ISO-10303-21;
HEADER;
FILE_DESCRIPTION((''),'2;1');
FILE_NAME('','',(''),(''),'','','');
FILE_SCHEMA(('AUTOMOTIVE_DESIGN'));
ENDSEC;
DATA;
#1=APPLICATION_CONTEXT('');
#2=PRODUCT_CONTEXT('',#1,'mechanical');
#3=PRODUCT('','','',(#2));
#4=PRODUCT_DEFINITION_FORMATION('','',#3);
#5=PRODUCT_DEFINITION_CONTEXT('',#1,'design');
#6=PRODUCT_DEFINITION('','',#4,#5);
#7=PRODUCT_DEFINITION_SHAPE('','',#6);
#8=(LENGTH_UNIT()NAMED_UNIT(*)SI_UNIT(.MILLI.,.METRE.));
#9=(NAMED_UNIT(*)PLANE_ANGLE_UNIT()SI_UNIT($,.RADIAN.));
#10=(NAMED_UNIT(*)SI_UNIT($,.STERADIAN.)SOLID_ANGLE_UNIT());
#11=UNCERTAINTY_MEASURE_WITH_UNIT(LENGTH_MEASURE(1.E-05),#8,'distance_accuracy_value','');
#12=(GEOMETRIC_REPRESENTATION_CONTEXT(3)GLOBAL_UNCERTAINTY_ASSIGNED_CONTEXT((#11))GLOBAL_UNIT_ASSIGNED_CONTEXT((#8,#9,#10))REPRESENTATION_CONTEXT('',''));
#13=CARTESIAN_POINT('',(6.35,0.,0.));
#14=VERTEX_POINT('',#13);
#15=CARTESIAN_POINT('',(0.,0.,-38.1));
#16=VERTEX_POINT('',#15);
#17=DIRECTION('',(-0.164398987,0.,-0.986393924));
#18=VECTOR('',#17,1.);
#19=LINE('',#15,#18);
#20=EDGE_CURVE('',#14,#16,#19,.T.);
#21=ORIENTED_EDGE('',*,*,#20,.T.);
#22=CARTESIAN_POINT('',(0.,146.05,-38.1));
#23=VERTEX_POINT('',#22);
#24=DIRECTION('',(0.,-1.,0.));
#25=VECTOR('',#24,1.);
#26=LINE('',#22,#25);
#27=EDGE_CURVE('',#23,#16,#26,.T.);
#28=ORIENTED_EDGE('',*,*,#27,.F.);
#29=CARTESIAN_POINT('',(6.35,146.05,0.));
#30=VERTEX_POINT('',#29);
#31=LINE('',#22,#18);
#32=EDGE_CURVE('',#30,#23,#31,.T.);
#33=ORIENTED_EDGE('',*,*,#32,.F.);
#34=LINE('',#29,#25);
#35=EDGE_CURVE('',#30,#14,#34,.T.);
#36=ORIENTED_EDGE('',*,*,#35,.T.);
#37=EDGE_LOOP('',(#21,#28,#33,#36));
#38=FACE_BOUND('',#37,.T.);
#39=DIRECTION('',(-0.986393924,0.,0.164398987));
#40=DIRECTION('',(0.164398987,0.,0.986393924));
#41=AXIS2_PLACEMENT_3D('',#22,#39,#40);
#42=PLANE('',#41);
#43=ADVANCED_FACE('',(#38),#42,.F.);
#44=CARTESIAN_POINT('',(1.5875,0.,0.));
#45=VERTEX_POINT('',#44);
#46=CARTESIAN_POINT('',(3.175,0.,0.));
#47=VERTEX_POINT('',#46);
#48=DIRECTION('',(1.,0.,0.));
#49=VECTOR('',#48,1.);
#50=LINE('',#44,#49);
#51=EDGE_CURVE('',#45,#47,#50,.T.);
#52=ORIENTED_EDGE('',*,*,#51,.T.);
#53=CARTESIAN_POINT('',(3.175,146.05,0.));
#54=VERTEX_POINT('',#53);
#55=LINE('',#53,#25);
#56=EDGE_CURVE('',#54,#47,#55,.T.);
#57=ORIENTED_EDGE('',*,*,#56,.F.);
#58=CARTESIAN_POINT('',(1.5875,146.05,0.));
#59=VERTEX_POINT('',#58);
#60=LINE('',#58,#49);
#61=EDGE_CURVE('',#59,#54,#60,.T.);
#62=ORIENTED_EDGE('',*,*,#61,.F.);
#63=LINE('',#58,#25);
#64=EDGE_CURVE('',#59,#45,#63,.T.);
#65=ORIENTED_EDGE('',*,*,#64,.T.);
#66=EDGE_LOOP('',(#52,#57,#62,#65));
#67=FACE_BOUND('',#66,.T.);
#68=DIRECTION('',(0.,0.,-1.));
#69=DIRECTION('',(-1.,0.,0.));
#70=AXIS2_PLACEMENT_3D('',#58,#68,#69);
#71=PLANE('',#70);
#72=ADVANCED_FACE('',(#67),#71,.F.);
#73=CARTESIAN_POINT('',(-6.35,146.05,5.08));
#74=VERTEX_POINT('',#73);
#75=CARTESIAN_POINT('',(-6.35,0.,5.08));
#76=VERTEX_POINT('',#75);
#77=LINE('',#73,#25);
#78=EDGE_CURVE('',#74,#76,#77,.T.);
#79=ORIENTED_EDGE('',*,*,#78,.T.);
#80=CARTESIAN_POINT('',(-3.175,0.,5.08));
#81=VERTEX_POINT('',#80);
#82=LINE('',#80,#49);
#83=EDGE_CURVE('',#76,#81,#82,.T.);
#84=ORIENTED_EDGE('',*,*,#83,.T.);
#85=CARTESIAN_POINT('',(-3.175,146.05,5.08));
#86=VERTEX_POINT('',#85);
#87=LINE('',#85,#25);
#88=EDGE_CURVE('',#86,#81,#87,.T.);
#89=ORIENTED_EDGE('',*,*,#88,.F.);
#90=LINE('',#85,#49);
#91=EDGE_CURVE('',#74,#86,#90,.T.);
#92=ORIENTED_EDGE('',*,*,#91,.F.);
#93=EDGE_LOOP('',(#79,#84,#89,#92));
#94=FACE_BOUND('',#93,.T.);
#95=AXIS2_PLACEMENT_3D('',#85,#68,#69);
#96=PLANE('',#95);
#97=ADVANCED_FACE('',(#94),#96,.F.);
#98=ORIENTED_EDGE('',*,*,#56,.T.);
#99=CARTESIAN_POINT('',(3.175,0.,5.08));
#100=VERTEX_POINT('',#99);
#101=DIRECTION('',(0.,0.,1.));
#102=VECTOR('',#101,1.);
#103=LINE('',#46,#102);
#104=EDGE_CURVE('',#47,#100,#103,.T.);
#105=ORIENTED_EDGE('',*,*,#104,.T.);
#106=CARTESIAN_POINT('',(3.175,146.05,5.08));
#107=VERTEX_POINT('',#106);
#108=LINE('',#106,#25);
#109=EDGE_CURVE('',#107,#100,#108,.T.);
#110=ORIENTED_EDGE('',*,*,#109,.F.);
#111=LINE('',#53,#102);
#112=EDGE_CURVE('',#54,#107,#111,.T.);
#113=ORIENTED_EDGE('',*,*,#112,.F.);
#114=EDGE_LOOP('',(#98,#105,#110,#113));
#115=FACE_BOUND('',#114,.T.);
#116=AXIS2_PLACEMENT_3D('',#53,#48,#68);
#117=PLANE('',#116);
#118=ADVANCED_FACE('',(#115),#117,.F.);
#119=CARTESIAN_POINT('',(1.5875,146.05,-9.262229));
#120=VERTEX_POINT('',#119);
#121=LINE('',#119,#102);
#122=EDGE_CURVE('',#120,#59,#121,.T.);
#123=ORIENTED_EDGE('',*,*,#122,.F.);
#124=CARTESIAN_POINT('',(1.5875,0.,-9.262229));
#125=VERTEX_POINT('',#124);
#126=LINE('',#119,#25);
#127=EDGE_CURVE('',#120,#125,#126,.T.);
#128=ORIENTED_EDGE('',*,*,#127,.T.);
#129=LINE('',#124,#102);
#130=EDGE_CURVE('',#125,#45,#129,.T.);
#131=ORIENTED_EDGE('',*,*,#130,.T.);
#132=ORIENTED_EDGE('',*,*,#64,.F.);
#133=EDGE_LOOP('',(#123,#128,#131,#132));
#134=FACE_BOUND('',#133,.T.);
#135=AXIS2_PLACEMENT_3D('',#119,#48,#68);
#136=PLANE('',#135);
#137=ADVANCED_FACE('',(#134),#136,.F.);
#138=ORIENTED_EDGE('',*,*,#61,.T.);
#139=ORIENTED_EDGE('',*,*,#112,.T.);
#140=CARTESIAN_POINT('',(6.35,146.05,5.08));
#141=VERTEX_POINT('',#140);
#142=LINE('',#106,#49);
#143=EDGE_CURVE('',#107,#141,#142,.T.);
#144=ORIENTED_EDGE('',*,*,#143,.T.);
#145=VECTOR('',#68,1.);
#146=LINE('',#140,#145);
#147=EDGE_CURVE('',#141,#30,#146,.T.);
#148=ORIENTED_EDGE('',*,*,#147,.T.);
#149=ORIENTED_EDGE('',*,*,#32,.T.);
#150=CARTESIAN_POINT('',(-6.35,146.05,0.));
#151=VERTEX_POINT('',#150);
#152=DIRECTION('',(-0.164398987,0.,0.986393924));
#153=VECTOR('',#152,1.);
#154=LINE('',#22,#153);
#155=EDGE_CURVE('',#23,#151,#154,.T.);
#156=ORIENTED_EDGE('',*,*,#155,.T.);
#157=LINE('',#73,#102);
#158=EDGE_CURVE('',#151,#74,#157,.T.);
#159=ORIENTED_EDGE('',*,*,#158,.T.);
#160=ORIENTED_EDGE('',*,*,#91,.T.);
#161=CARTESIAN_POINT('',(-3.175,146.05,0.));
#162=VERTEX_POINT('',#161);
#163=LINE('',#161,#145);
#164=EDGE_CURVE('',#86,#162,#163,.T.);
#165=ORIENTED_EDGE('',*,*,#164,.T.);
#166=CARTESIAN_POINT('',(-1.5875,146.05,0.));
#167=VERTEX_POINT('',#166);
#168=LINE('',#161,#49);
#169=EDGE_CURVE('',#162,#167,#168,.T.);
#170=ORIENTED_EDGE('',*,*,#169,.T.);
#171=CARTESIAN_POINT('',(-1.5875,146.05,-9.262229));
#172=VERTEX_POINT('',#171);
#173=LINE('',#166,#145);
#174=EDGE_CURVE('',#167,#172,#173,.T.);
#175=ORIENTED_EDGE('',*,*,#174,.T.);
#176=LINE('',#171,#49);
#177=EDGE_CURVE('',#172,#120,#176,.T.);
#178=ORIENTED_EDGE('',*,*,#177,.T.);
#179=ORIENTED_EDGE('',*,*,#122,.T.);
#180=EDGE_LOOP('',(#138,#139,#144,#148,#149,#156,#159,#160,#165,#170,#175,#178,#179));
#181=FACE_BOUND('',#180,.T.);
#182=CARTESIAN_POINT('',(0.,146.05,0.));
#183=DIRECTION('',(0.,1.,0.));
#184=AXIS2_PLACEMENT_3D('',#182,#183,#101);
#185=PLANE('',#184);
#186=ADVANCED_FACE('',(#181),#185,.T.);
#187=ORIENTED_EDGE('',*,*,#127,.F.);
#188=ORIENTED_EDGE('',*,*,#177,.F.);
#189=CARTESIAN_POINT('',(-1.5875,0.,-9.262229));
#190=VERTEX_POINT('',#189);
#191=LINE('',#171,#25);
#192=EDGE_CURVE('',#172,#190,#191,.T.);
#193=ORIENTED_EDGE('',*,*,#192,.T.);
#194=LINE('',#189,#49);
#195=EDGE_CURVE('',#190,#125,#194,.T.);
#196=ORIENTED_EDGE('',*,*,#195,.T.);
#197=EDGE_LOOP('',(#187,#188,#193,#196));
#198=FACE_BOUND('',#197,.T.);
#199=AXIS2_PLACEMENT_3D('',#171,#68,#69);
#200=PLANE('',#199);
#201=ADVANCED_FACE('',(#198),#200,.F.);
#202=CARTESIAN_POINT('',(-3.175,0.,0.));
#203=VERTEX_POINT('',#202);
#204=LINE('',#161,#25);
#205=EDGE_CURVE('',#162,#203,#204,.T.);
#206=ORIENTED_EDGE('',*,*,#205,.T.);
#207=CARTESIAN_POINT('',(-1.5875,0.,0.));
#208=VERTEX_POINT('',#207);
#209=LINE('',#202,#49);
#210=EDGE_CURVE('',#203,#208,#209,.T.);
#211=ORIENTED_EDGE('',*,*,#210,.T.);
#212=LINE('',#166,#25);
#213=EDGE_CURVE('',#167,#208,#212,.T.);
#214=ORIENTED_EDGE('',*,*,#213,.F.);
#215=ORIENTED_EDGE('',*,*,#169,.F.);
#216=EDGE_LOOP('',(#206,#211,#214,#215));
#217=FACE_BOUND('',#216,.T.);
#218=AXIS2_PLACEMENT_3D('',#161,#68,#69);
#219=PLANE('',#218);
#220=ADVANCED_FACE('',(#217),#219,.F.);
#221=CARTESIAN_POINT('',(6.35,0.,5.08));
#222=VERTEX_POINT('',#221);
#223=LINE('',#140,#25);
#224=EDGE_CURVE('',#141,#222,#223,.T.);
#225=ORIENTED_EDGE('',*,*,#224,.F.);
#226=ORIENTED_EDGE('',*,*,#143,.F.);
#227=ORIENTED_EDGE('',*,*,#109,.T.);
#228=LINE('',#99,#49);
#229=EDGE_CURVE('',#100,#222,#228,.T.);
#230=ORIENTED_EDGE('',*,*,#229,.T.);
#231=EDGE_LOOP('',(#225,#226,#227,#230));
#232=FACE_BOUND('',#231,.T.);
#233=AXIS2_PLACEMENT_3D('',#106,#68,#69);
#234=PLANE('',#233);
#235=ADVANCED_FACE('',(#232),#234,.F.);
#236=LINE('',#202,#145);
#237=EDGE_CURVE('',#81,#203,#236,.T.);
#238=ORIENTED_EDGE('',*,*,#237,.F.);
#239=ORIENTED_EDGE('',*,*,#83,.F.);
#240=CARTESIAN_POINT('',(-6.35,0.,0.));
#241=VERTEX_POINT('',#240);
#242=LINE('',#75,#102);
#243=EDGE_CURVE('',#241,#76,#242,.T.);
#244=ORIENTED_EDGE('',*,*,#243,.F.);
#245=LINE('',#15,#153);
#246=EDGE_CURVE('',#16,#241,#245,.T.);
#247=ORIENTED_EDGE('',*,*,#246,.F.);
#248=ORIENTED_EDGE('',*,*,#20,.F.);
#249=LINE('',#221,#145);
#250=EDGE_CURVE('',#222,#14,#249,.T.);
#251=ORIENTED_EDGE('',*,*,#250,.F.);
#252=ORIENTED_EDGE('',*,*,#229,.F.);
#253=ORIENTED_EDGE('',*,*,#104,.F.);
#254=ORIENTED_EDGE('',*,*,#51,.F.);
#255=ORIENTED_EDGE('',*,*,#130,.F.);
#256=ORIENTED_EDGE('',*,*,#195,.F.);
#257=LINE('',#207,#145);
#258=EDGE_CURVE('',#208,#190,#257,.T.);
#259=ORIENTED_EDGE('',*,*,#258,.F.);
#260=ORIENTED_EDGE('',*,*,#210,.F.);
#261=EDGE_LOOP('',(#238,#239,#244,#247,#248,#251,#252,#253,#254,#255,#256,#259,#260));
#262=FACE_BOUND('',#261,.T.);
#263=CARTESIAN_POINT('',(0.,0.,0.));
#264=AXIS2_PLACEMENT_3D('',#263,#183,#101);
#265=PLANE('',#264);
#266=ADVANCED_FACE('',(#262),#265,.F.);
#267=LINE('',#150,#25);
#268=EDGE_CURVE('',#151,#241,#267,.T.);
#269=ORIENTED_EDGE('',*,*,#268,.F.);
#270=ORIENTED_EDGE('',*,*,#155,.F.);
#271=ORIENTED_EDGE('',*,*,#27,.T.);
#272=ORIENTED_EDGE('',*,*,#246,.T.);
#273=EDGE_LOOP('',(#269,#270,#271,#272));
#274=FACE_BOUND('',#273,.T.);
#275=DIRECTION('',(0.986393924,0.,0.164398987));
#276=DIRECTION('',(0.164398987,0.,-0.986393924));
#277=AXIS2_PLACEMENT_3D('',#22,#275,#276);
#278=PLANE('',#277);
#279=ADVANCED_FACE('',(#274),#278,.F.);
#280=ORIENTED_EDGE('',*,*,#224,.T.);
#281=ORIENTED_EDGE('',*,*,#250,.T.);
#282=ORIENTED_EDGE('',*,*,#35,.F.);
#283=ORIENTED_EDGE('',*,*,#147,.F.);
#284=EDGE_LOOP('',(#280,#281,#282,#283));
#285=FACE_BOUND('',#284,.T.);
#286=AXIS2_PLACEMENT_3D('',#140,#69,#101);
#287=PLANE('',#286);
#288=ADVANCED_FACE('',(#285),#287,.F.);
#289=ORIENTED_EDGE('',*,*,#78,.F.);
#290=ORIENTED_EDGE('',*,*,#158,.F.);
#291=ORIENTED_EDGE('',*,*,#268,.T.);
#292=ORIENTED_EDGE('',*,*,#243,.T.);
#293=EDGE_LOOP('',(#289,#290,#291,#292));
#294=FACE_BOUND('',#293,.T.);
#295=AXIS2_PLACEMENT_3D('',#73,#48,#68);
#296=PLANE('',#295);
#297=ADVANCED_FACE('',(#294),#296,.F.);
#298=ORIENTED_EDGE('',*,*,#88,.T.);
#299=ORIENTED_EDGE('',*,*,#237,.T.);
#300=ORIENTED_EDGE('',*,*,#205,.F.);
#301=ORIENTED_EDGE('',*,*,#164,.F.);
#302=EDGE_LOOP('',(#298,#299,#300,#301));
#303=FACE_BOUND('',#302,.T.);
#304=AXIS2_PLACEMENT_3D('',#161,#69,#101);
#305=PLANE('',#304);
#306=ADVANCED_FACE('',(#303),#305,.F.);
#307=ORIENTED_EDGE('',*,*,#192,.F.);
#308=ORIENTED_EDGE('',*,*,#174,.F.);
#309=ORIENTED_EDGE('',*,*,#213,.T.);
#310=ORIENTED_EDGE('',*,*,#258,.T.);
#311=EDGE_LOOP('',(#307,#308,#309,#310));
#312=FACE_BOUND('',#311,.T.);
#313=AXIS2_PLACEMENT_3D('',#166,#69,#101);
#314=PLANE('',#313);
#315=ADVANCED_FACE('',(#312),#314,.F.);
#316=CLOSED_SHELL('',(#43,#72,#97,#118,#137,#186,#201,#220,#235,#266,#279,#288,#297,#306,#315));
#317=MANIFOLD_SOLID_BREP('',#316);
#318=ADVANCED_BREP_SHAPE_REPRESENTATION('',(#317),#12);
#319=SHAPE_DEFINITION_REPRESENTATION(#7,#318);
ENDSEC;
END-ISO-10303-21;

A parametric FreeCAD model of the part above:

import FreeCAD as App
import Part
import Sketcher
Q = App.Units.Quantity


def add_polygon(sketch, points):
    """Adds a closed chain of lines whose ends are joined by coincident constraints."""
    first, n = sketch.GeometryCount, len(points)
    for a, b in zip(points, points[1:] + points[:1]):
        sketch.addGeometry(Part.LineSegment(App.Vector(*a, 0), App.Vector(*b, 0)), False)
    for i in range(n):
        sketch.addConstraint(Sketcher.Constraint("Coincident", first + i, 2, first + (i + 1) % n, 1))

doc = App.newDocument("Part")
body = doc.addObject("PartDesign::Body", "Body")

sketch1 = body.newObject("Sketcher::SketchObject", "Sketch")
sketch1.AttachmentSupport = (doc.getObject("XZ_Plane"), [""])
sketch1.MapMode = "FlatFace"
add_polygon(sketch1, [(0, -38.1), (-6.35, 0), (-6.35, 5.08), (-3.175, 5.08), (-3.175, 0), (-1.5875, 0), (-1.5875, -9.262229), (1.5875, -9.262229), (1.5875, 0), (3.175, 0), (3.175, 5.08), (6.35, 5.08), (6.35, 0)])
sketch1.addConstraint([
    Sketcher.Constraint("Vertical", 1),
    Sketcher.Constraint("Horizontal", 2),
    Sketcher.Constraint("Vertical", 3),
    Sketcher.Constraint("Horizontal", 4),
    Sketcher.Constraint("Vertical", 5),
    Sketcher.Constraint("Horizontal", 6),
    Sketcher.Constraint("Vertical", 7),
    Sketcher.Constraint("Horizontal", 8),
    Sketcher.Constraint("Vertical", 9),
    Sketcher.Constraint("Horizontal", 10),
    Sketcher.Constraint("Vertical", 11),
    Sketcher.Constraint("Symmetric", 4, 2, 7, 2, -1, 1),
    Sketcher.Constraint("Symmetric", 0, 2, 11, 2, -1, 1),
    Sketcher.Constraint("Symmetric", 3, 2, 8, 2, -2),
    Sketcher.Constraint("PointOnObject", 0, 2, -1),
    Sketcher.Constraint("PointOnObject", 12, 2, -2),
    Sketcher.Constraint("Horizontal", 2, 2, 9, 2),
    Sketcher.Constraint("Equal", 2, 6),
    Sketcher.Constraint("DistanceY", 1, 1, 1, 2, Q("0.2 in")),
    Sketcher.Constraint("DistanceY", 12, 2, -1, 1, Q("1.5 in")),
    Sketcher.Constraint("DistanceX", 2, 1, 2, 2, Q("0.125 in")),
    Sketcher.Constraint("DistanceX", 4, 1, 4, 2, Q("0.0625 in")),
    Sketcher.Constraint("DistanceY", 5, 2, 5, 1, Q("9.262229 mm")),
])
pad1 = body.newObject("PartDesign::Pad", "Pad")
pad1.Profile = sketch1
pad1.Length = Q("5.75 in")
pad1.Reversed = True

doc.recompute()
